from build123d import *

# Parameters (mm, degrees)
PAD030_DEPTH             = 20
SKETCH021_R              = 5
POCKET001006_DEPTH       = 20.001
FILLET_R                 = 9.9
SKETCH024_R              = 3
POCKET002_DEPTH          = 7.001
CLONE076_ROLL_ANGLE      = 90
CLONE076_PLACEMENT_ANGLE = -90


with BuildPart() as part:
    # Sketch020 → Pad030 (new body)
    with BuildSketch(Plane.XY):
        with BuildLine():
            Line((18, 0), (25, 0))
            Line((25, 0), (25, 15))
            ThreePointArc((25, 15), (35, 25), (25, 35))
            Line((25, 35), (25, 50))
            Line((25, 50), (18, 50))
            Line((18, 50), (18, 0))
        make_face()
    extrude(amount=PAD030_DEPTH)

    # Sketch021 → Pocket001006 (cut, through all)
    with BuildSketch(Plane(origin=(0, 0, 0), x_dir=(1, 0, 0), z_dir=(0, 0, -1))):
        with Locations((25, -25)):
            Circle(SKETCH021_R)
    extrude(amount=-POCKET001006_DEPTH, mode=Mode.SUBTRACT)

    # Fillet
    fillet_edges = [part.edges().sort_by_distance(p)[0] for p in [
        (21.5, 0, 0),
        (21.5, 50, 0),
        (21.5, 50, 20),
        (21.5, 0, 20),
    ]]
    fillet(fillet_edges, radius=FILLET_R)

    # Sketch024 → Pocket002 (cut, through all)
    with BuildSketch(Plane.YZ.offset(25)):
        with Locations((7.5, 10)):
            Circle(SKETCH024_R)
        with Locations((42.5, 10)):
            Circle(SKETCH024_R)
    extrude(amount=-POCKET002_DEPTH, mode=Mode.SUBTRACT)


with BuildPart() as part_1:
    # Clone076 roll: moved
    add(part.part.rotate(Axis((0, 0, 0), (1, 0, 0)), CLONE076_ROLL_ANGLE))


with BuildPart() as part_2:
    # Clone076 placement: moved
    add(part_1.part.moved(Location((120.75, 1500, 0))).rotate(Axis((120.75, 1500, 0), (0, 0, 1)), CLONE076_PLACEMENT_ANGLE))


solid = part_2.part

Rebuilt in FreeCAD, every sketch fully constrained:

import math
import FreeCAD as App
import Part
import Sketcher


def edges_at(feature, points):
    """Names of the edges that pass closest to the given points."""
    edges = feature.Shape.Edges
    near = lambda p: min(range(len(edges)), key=lambda i: edges[i].distToShape(Part.Vertex(*p))[0])
    return sorted({f"Edge{near(p) + 1}" for p in points})

doc = App.newDocument("Part")
body = doc.addObject("PartDesign::Body", "Body")

sketch1 = doc.addObject("Sketcher::SketchObject", "Sketch")
body.addObject(sketch1)
sketch1.AttachmentSupport = (doc.XY_Plane, [""])
sketch1.MapMode = "FlatFace"
sketch1.addGeometry([
    Part.LineSegment(App.Vector(18, 0, 0), App.Vector(25, 0, 0)),
    Part.LineSegment(App.Vector(25, 0, 0), App.Vector(25, 15, 0)),
    Part.ArcOfCircle(Part.Circle(App.Vector(25, 25, 0), App.Vector(0, 0, 1), 10), math.radians(-90), math.radians(90)),
    Part.LineSegment(App.Vector(25, 35, 0), App.Vector(25, 50, 0)),
    Part.LineSegment(App.Vector(25, 50, 0), App.Vector(18, 50, 0)),
    Part.LineSegment(App.Vector(18, 50, 0), App.Vector(18, 0, 0)),
], False)
sketch1.addConstraint([
    Sketcher.Constraint("Coincident", 0, 2, 1, 1),
    Sketcher.Constraint("Coincident", 1, 2, 2, 1),
    Sketcher.Constraint("Coincident", 2, 2, 3, 1),
    Sketcher.Constraint("Coincident", 3, 2, 4, 1),
    Sketcher.Constraint("Coincident", 4, 2, 5, 1),
    Sketcher.Constraint("Coincident", 5, 2, 0, 1),
    Sketcher.Constraint("Horizontal", 0),
    Sketcher.Constraint("Vertical", 1),
    Sketcher.Constraint("Vertical", 3),
    Sketcher.Constraint("Horizontal", 4),
    Sketcher.Constraint("Vertical", 5),
    Sketcher.Constraint("PointOnObject", 0, 2, -1),
    Sketcher.Constraint("Vertical", 2, 3, 0, 2),
    Sketcher.Constraint("Vertical", 1, 2, 2, 2),
    Sketcher.Constraint("Equal", 1, 3),
    Sketcher.Constraint("Radius", 2, 10.0),
    Sketcher.Constraint("DistanceX", 0, 1, 0, 2, 7.0),
    Sketcher.Constraint("DistanceY", 1, 1, 1, 2, 15.0),
    Sketcher.Constraint("DistanceX", -1, 1, 2, 3, 25.0),
])
pad1 = doc.addObject("PartDesign::Pad", "Pad")
body.addObject(pad1)
pad1.Profile = sketch1
pad1.Length = 20

sketch2 = doc.addObject("Sketcher::SketchObject", "Sketch001")
body.addObject(sketch2)
sketch2.AttachmentSupport = (doc.XY_Plane, [""])
sketch2.MapMode = "FlatFace"
sketch2.addGeometry(Part.Circle(App.Vector(25, 25, 0), App.Vector(0, 0, 1), 5), False)
sketch2.addConstraint([
    Sketcher.Constraint("Diameter", 0, 10.0),
    Sketcher.Constraint("DistanceX", -1, 1, 0, 3, 25.0),
    Sketcher.Constraint("DistanceY", -1, 1, 0, 3, 25.0),
])
pocket1 = doc.addObject("PartDesign::Pocket", "Pocket")
body.addObject(pocket1)
pocket1.Profile = sketch2
pocket1.Type = "ThroughAll"
pocket1.Reversed = True
doc.recompute()

fillet = doc.addObject("PartDesign::Fillet", "Fillet")
body.addObject(fillet)
fillet.Base = (pocket1, edges_at(pocket1, [
    (21.5, 0, 0),
    (21.5, 50, 0),
    (21.5, 50, 20),
    (21.5, 0, 20),
]))
fillet.Radius = 9.9

sketch3 = doc.addObject("Sketcher::SketchObject", "Sketch002")
body.addObject(sketch3)
sketch3.AttachmentSupport = (doc.YZ_Plane, [""])
sketch3.MapMode = "FlatFace"
sketch3.AttachmentOffset = App.Placement(App.Vector(0, 0, 25), App.Rotation())
sketch3.addGeometry([
    Part.Circle(App.Vector(7.5, 10, 0), App.Vector(0, 0, 1), 3),
    Part.Circle(App.Vector(42.5, 10, 0), App.Vector(0, 0, 1), 3),
], False)
sketch3.addConstraint([
    Sketcher.Constraint("Equal", 0, 1),
    Sketcher.Constraint("Horizontal", 0, 3, 1, 3),
    Sketcher.Constraint("Diameter", 0, 6.0),
    Sketcher.Constraint("DistanceY", -1, 1, 0, 3, 10.0),
    Sketcher.Constraint("DistanceX", 0, 3, 1, 3, 35.0),
    Sketcher.Constraint("DistanceX", -1, 1, 0, 3, 7.5),
])
pocket2 = doc.addObject("PartDesign::Pocket", "Pocket001")
body.addObject(pocket2)
pocket2.Profile = sketch3
pocket2.Type = "ThroughAll"
body2 = doc.addObject("PartDesign::Body", "Body001")
doc.recompute()

body.Placement = App.Placement(App.Vector(0, 0, 0), App.Rotation(App.Vector(1, 0, 0), 90))
boolean = doc.addObject("PartDesign::Boolean", "Boolean")
body2.addObject(boolean)
boolean.Type = "Fuse"
boolean.addObjects([body])
body3 = doc.addObject("PartDesign::Body", "Body002")
doc.recompute()

body2.Placement = App.Placement(App.Vector(120.75, 1500, 0), App.Rotation(App.Vector(0, 0, 1), 270))
boolean2 = doc.addObject("PartDesign::Boolean", "Boolean001")
body3.addObject(boolean2)
boolean2.Type = "Fuse"
boolean2.addObjects([body2])

doc.recompute()
